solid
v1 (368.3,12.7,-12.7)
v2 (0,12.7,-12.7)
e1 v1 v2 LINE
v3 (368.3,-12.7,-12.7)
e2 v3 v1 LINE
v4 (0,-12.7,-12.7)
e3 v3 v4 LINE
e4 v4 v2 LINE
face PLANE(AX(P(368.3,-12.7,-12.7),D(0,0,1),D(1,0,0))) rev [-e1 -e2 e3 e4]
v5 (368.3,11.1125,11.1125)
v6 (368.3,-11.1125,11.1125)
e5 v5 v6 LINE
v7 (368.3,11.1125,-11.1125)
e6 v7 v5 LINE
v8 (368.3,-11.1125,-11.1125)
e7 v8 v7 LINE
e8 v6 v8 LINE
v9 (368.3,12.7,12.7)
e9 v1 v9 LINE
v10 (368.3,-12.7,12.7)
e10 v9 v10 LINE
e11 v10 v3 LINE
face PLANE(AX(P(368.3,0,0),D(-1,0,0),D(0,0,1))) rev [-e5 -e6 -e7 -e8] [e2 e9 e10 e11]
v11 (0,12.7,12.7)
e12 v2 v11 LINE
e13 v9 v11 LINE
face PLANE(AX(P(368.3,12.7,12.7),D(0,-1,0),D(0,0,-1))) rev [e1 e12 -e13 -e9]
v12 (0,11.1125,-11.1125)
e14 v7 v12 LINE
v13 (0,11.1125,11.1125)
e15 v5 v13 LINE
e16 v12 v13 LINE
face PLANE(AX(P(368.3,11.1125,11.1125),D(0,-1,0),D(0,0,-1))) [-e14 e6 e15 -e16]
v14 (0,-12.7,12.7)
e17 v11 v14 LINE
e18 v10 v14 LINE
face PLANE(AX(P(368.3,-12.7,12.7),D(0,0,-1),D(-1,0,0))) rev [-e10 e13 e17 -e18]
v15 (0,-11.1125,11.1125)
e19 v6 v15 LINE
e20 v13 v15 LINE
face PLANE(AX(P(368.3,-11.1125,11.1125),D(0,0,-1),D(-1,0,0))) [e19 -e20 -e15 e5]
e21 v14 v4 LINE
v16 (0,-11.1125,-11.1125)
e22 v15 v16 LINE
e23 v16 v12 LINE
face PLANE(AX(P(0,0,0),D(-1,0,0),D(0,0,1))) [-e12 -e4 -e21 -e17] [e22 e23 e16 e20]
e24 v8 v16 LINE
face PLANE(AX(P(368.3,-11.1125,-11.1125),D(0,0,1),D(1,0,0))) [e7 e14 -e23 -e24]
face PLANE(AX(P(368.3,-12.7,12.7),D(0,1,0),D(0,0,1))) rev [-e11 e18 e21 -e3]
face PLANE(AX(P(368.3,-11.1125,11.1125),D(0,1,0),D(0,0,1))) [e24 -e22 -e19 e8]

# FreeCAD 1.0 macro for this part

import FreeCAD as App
import Part
import Sketcher
from FreeCAD import Vector
Q = App.Units.Quantity


def add_polygon(sketch, points):
    """Adds a closed chain of lines whose ends are joined by coincident constraints."""
    first, n = sketch.GeometryCount, len(points)
    for a, b in zip(points, points[1:] + points[:1]):
        sketch.addGeometry(Part.LineSegment(App.Vector(*a, 0), App.Vector(*b, 0)), False)
    for i in range(n):
        sketch.addConstraint(Sketcher.Constraint("Coincident", first + i, 2, first + (i + 1) % n, 1))

doc = App.newDocument("Part")
params = doc.addObject("Spreadsheet::Sheet", "Params")
for row, (alias, value) in enumerate([
    ("sketch1_width", "1 in"),
    ("sketch1_width2", "0.875 in"),
    ("pad1_length", "14.5 in"),
], start=1):
    params.set(f"A{row}", alias)
    params.set(f"B{row}", "=" + value)
    params.setAlias(f"B{row}", alias)

body = doc.addObject("PartDesign::Body", "Body")

# Sketch on YZ plane
sketch1 = doc.addObject("Sketcher::SketchObject", "Sketch")
body.addObject(sketch1)
sketch1.AttachmentSupport = (doc.YZ_Plane, [""])
sketch1.MapMode = "FlatFace"
add_polygon(sketch1, [(13, 13), (-13, 13), (-13, -13), (13, -13)])  # lines 0-3
add_polygon(sketch1, [(-11, -11), (-11, 11), (11, 11), (11, -11)])  # lines 4-7
sketch1.addConstraint([
    Sketcher.Constraint("Horizontal", 0),
    Sketcher.Constraint("Vertical", 1),
    Sketcher.Constraint("Horizontal", 2),
    Sketcher.Constraint("Vertical", 3),
    Sketcher.Constraint("Vertical", 4),
    Sketcher.Constraint("Horizontal", 5),
    Sketcher.Constraint("Vertical", 6),
    Sketcher.Constraint("Horizontal", 7),
    Sketcher.Constraint("Symmetric", 0, 2, 2, 2, -1, 1),
    Sketcher.Constraint("Symmetric", 4, 2, 6, 2, -1, 1),
    Sketcher.Constraint("Equal", 2, 1),
    Sketcher.Constraint("Equal", 7, 4),
    Sketcher.Constraint("DistanceX", 0, 2, 0, 1, Q("1 in")),
    Sketcher.Constraint("DistanceX", 5, 1, 5, 2, Q("0.875 in")),
])
sketch1.setExpression("Constraints[20]", "Params.sketch1_width")
sketch1.setExpression("Constraints[21]", "Params.sketch1_width2")
pad1 = doc.addObject("PartDesign::Pad", "Pad")
body.addObject(pad1)
pad1.Profile = sketch1
pad1.setExpression("Length", "Params.pad1_length")

doc.recompute()
